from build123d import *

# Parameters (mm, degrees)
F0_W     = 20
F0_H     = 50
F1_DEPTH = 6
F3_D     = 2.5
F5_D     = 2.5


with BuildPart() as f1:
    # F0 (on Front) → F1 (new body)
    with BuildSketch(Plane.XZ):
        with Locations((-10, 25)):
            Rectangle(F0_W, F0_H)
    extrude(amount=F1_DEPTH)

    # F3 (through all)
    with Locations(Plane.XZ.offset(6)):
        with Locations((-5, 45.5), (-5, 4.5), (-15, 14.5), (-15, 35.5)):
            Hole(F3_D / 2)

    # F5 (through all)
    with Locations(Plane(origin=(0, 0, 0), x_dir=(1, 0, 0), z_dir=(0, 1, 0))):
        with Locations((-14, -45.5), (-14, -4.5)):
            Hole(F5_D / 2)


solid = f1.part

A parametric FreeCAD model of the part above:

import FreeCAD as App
import Part
import Sketcher
Q = App.Units.Quantity


def add_polygon(sketch, points):
    """Adds a closed chain of lines whose ends are joined by coincident constraints."""
    first, n = sketch.GeometryCount, len(points)
    for a, b in zip(points, points[1:] + points[:1]):
        sketch.addGeometry(Part.LineSegment(App.Vector(*a, 0), App.Vector(*b, 0)), False)
    for i in range(n):
        sketch.addConstraint(Sketcher.Constraint("Coincident", first + i, 2, first + (i + 1) % n, 1))

doc = App.newDocument("Part")
body = doc.addObject("PartDesign::Body", "Body")

# Sketch on XZ plane
sketch1 = body.newObject("Sketcher::SketchObject", "Sketch")
sketch1.AttachmentSupport = (doc.getObject("XZ_Plane"), [""])
sketch1.MapMode = "FlatFace"
add_polygon(sketch1, [(-20, 50), (-20, 0), (0, 0), (0, 50)])  # lines 0-3
sketch1.addConstraint(Sketcher.Constraint("Vertical", 0))
sketch1.addConstraint(Sketcher.Constraint("Horizontal", 1))
sketch1.addConstraint(Sketcher.Constraint("Vertical", 2))
sketch1.addConstraint(Sketcher.Constraint("Horizontal", 3))
sketch1.addConstraint(Sketcher.Constraint("Coincident", 1, 2, -1, 1))
sketch1.addConstraint(Sketcher.Constraint("DistanceX", 1, 1, 1, 2, Q("20 mm")))
sketch1.addConstraint(Sketcher.Constraint("DistanceY", 0, 2, 0, 1, Q("50 mm")))
pad1 = body.newObject("PartDesign::Pad", "Pad")
pad1.Profile = sketch1
pad1.Length = 6

# Sketch on XZ plane
sketch2 = body.newObject("Sketcher::SketchObject", "Sketch001")
sketch2.AttachmentSupport = (doc.getObject("XZ_Plane"), [""])
sketch2.MapMode = "FlatFace"
sketch2.AttachmentOffset = App.Placement(App.Vector(0, 0, 6), App.Rotation())
sketch2.addGeometry(Part.Circle(App.Vector(-5, 45.5, 0), App.Vector(0, 0, 1), 1.25), False)
sketch2.addGeometry(Part.Circle(App.Vector(-5, 4.5, 0), App.Vector(0, 0, 1), 1.25), False)
sketch2.addGeometry(Part.Circle(App.Vector(-15, 14.5, 0), App.Vector(0, 0, 1), 1.25), False)
sketch2.addGeometry(Part.Circle(App.Vector(-15, 35.5, 0), App.Vector(0, 0, 1), 1.25), False)
sketch2.addConstraint(Sketcher.Constraint("Equal", 0, 1))
sketch2.addConstraint(Sketcher.Constraint("Equal", 1, 2))
sketch2.addConstraint(Sketcher.Constraint("Equal", 2, 3))
sketch2.addConstraint(Sketcher.Constraint("Vertical", 0, 3, 1, 3))
sketch2.addConstraint(Sketcher.Constraint("Vertical", 2, 3, 3, 3))
sketch2.addConstraint(Sketcher.Constraint("Diameter", 0, Q("2.5 mm")))
sketch2.addConstraint(Sketcher.Constraint("DistanceX", 0, 3, -1, 1, Q("5 mm")))
sketch2.addConstraint(Sketcher.Constraint("DistanceX", 2, 3, -1, 1, Q("15 mm")))
sketch2.addConstraint(Sketcher.Constraint("DistanceY", 1, 3, 0, 3, Q("41 mm")))
sketch2.addConstraint(Sketcher.Constraint("DistanceY", 1, 3, 2, 3, Q("10 mm")))
sketch2.addConstraint(Sketcher.Constraint("DistanceY", 3, 3, 0, 3, Q("10 mm")))
sketch2.addConstraint(Sketcher.Constraint("DistanceY", -1, 1, 0, 3, Q("45.5 mm")))
doc.recompute()
hole = body.newObject("PartDesign::Hole", "Hole")
hole.Profile = sketch2
hole.ThreadType = "None"
hole.Diameter = 2.5
hole.DepthType = "ThroughAll"

# Sketch on XZ plane
sketch3 = body.newObject("Sketcher::SketchObject", "Sketch002")
sketch3.AttachmentSupport = (doc.getObject("XZ_Plane"), [""])
sketch3.MapMode = "FlatFace"
sketch3.addGeometry(Part.Circle(App.Vector(-14, 45.5, 0), App.Vector(0, 0, 1), 1.25), False)
sketch3.addGeometry(Part.Circle(App.Vector(-14, 4.5, 0), App.Vector(0, 0, 1), 1.25), False)
sketch3.addConstraint(Sketcher.Constraint("Equal", 0, 1))
sketch3.addConstraint(Sketcher.Constraint("Vertical", 0, 3, 1, 3))
sketch3.addConstraint(Sketcher.Constraint("Diameter", 0, Q("2.5 mm")))
sketch3.addConstraint(Sketcher.Constraint("DistanceX", 0, 3, -1, 1, Q("14 mm")))
sketch3.addConstraint(Sketcher.Constraint("DistanceY", 1, 3, 0, 3, Q("41 mm")))
sketch3.addConstraint(Sketcher.Constraint("DistanceY", -1, 1, 0, 3, Q("45.5 mm")))
doc.recompute()
hole2 = body.newObject("PartDesign::Hole", "Hole001")
hole2.Profile = sketch3
hole2.ThreadType = "None"
hole2.Diameter = 2.5
hole2.DepthType = "ThroughAll"
hole2.Reversed = True

doc.recompute()
